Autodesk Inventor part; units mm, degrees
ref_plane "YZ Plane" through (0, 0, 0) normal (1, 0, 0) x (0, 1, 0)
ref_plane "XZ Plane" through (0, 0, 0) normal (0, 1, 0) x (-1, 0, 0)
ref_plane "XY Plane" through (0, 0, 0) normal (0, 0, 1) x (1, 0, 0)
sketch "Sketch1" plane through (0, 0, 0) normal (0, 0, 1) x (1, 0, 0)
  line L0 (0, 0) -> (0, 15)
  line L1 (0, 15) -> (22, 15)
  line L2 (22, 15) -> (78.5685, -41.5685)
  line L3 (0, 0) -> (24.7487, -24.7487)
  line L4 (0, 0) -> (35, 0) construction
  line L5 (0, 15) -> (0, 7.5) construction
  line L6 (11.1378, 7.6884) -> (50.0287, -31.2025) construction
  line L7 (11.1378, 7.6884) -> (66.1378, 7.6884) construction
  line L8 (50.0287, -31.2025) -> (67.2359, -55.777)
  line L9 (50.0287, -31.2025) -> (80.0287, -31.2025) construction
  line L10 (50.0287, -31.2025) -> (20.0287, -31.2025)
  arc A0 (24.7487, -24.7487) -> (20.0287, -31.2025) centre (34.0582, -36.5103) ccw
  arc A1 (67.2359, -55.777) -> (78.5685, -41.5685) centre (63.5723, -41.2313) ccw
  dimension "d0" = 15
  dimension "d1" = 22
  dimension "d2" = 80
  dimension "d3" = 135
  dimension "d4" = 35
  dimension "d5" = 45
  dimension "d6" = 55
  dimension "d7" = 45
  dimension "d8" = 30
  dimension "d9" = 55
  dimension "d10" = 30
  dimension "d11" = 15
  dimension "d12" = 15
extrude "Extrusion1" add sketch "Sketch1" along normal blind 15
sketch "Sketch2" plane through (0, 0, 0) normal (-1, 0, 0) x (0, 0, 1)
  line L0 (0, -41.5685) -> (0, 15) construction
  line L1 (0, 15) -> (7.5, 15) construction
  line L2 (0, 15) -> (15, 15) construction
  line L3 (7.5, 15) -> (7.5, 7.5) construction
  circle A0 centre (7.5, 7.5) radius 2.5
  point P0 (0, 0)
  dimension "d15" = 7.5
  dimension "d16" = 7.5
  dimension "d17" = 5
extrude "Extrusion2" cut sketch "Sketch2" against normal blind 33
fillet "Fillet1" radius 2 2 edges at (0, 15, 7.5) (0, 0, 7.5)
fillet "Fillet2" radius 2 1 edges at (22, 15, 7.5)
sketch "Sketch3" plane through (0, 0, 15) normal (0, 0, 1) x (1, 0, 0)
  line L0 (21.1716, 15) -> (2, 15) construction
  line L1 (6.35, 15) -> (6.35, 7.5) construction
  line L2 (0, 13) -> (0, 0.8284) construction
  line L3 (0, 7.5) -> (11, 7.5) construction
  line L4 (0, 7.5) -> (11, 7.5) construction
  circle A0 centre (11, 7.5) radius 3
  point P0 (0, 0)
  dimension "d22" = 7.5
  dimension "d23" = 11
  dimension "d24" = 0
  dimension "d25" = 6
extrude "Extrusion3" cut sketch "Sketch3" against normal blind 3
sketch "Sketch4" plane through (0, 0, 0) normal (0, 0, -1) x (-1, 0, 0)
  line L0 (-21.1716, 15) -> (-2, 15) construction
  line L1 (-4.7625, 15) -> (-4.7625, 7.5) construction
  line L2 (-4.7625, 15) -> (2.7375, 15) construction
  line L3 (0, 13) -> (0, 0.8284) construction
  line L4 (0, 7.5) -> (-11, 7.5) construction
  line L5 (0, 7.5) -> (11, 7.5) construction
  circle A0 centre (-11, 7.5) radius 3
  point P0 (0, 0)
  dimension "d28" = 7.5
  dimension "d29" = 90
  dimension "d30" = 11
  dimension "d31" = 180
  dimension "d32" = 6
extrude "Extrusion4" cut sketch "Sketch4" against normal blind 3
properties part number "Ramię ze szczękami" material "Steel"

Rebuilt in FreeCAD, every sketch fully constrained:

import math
import FreeCAD as App
import Part
import Sketcher
Q = App.Units.Quantity


def edges_at(feature, points):
    """Names of the edges that pass closest to the given points."""
    edges = feature.Shape.Edges
    near = lambda p: min(range(len(edges)), key=lambda i: edges[i].distToShape(Part.Vertex(*p))[0])
    return sorted({f"Edge{near(p) + 1}" for p in points})

doc = App.newDocument("Part")
params = doc.addObject("Spreadsheet::Sheet", "Params")
for row, (alias, value) in enumerate([
    ("sketch1_radius", "15 mm"),
    ("sketch1_width", "30 mm"),
    ("sketch1_width2", "22 mm"),
    ("sketch1_height", "15 mm"),
    ("sketch1_length", "35 mm"),
    ("pad1_length", "15 mm"),
    ("sketch2_diameter", "5 mm"),
    ("pocket1_length", "33 mm"),
    ("fillet_radius", "2 mm"),
    ("fillet2_radius", "2 mm"),
    ("sketch3_diameter", "6 mm"),
    ("pocket2_length", "3 mm"),
    ("sketch4_diameter", "6 mm"),
    ("pocket3_length", "3 mm"),
], start=1):
    params.set(f"A{row}", alias)
    params.set(f"B{row}", "=" + value)
    params.setAlias(f"B{row}", alias)

body = doc.addObject("PartDesign::Body", "Body")

# Sketch on XY plane
sketch1 = body.newObject("Sketcher::SketchObject", "Sketch")
sketch1.AttachmentSupport = (doc.getObject("XY_Plane"), [""])
sketch1.MapMode = "FlatFace"
sketch1.addGeometry([
    Part.LineSegment(App.Vector(0, 15, 0), App.Vector(0, 0, 0)),  # 0
    Part.LineSegment(App.Vector(0, 0, 0), App.Vector(25, -25, 0)),  # 1
    Part.ArcOfCircle(Part.Circle(App.Vector(34, -37, 0), App.Vector(0, 0, 1), 15), math.radians(128), math.radians(159)),  # 2
    Part.LineSegment(App.Vector(20, -31, 0), App.Vector(50, -31, 0)),  # 3
    Part.LineSegment(App.Vector(50, -31, 0), App.Vector(67, -56, 0)),  # 4
    Part.ArcOfCircle(Part.Circle(App.Vector(64, -41, 0), App.Vector(0, 0, 1), 15), math.radians(-76), math.radians(-1)),  # 5
    Part.LineSegment(App.Vector(79, -42, 0), App.Vector(22, 15, 0)),  # 6
    Part.LineSegment(App.Vector(22, 15, 0), App.Vector(0, 15, 0)),  # 7
], False)
sketch1.addConstraint([
    Sketcher.Constraint("Coincident", 0, 2, 1, 1),
    Sketcher.Constraint("Coincident", 1, 2, 2, 1),
    Sketcher.Constraint("Coincident", 2, 2, 3, 1),
    Sketcher.Constraint("Coincident", 3, 2, 4, 1),
    Sketcher.Constraint("Coincident", 4, 2, 5, 1),
    Sketcher.Constraint("Coincident", 5, 2, 6, 1),
    Sketcher.Constraint("Coincident", 6, 2, 7, 1),
    Sketcher.Constraint("Coincident", 7, 2, 0, 1),
    Sketcher.Constraint("Vertical", 0),
    Sketcher.Constraint("Horizontal", 3),
    Sketcher.Constraint("Horizontal", 7),
    Sketcher.Constraint("Coincident", 0, 2, -1, 1),
    Sketcher.Constraint("Parallel", 1, 6),
    Sketcher.Constraint("Radius", 5, 15.0),
    Sketcher.Constraint("DistanceX", 3, 1, 3, 2, 30.0),
    Sketcher.Constraint("DistanceX", 7, 2, 7, 1, 22.0),
    Sketcher.Constraint("DistanceY", 0, 2, 0, 1, 15.0),
    Sketcher.Constraint("Angle", 1, Q("-45 deg")),
    Sketcher.Constraint("Angle", 4, Q("-55 deg")),
    Sketcher.Constraint("Distance", 1, 35.0),
    Sketcher.Constraint("Distance", 4, 30.0),
    Sketcher.Constraint("Distance", 6, 80.0),
    Sketcher.Constraint("Radius", 2, 14.999),
    Sketcher.Constraint("DistanceX", 2, 2, 1, 2, 4.72),
    Sketcher.Constraint("DistanceY", 4, 2, -1, 1, 55.777),
])
sketch1.setExpression("Constraints[13]", "Params.sketch1_radius")
sketch1.setExpression("Constraints[14]", "Params.sketch1_width")
sketch1.setExpression("Constraints[15]", "Params.sketch1_width2")
sketch1.setExpression("Constraints[16]", "Params.sketch1_height")
sketch1.setExpression("Constraints[19]", "Params.sketch1_length")
pad1 = body.newObject("PartDesign::Pad", "Pad")
pad1.Profile = sketch1
pad1.setExpression("Length", "Params.pad1_length")

# Sketch on YZ plane
sketch2 = body.newObject("Sketcher::SketchObject", "Sketch001")
sketch2.AttachmentSupport = (doc.getObject("YZ_Plane"), [""])
sketch2.MapMode = "FlatFace"
sketch2.addGeometry(Part.Circle(App.Vector(7.5, 7.5, 0), App.Vector(0, 0, 1), 2.5), False)
sketch2.addConstraint([
    Sketcher.Constraint("Diameter", 0, 5.0),
    Sketcher.Constraint("DistanceX", -1, 1, 0, 3, 7.5),
    Sketcher.Constraint("DistanceY", -1, 1, 0, 3, 7.5),
])
sketch2.setExpression("Constraints[0]", "Params.sketch2_diameter")
pocket1 = body.newObject("PartDesign::Pocket", "Pocket")
pocket1.Profile = sketch2
pocket1.setExpression("Length", "Params.pocket1_length")
pocket1.Reversed = True
doc.recompute()

fillet = body.newObject("PartDesign::Fillet", "Fillet")
fillet.Base = (pocket1, edges_at(pocket1, [(0, 15, 7.5), (0, 0, 7.5)]))
fillet.setExpression("Radius", "Params.fillet_radius")
doc.recompute()

fillet2 = body.newObject("PartDesign::Fillet", "Fillet001")
fillet2.Base = (fillet, edges_at(fillet, [(22, 15, 7.5)]))
fillet2.setExpression("Radius", "Params.fillet2_radius")

# Sketch on XY plane
sketch3 = body.newObject("Sketcher::SketchObject", "Sketch002")
sketch3.AttachmentSupport = (doc.getObject("XY_Plane"), [""])
sketch3.MapMode = "FlatFace"
sketch3.AttachmentOffset = App.Placement(App.Vector(0, 0, 15), App.Rotation())
sketch3.addGeometry(Part.Circle(App.Vector(11, 7.5, 0), App.Vector(0, 0, 1), 3), False)
sketch3.addConstraint([
    Sketcher.Constraint("Diameter", 0, 6.0),
    Sketcher.Constraint("DistanceX", -1, 1, 0, 3, 11.0),
    Sketcher.Constraint("DistanceY", -1, 1, 0, 3, 7.5),
])
sketch3.setExpression("Constraints[0]", "Params.sketch3_diameter")
pocket2 = body.newObject("PartDesign::Pocket", "Pocket001")
pocket2.Profile = sketch3
pocket2.setExpression("Length", "Params.pocket2_length")

# Sketch on XY plane
sketch4 = body.newObject("Sketcher::SketchObject", "Sketch003")
sketch4.AttachmentSupport = (doc.getObject("XY_Plane"), [""])
sketch4.MapMode = "FlatFace"
sketch4.addGeometry(Part.Circle(App.Vector(11, 7.5, 0), App.Vector(0, 0, 1), 3), False)
sketch4.addConstraint([
    Sketcher.Constraint("Diameter", 0, 6.0),
    Sketcher.Constraint("DistanceX", -1, 1, 0, 3, 11.0),
    Sketcher.Constraint("DistanceY", -1, 1, 0, 3, 7.5),
])
sketch4.setExpression("Constraints[0]", "Params.sketch4_diameter")
pocket3 = body.newObject("PartDesign::Pocket", "Pocket002")
pocket3.Profile = sketch4
pocket3.setExpression("Length", "Params.pocket3_length")
pocket3.Reversed = True

doc.recompute()
